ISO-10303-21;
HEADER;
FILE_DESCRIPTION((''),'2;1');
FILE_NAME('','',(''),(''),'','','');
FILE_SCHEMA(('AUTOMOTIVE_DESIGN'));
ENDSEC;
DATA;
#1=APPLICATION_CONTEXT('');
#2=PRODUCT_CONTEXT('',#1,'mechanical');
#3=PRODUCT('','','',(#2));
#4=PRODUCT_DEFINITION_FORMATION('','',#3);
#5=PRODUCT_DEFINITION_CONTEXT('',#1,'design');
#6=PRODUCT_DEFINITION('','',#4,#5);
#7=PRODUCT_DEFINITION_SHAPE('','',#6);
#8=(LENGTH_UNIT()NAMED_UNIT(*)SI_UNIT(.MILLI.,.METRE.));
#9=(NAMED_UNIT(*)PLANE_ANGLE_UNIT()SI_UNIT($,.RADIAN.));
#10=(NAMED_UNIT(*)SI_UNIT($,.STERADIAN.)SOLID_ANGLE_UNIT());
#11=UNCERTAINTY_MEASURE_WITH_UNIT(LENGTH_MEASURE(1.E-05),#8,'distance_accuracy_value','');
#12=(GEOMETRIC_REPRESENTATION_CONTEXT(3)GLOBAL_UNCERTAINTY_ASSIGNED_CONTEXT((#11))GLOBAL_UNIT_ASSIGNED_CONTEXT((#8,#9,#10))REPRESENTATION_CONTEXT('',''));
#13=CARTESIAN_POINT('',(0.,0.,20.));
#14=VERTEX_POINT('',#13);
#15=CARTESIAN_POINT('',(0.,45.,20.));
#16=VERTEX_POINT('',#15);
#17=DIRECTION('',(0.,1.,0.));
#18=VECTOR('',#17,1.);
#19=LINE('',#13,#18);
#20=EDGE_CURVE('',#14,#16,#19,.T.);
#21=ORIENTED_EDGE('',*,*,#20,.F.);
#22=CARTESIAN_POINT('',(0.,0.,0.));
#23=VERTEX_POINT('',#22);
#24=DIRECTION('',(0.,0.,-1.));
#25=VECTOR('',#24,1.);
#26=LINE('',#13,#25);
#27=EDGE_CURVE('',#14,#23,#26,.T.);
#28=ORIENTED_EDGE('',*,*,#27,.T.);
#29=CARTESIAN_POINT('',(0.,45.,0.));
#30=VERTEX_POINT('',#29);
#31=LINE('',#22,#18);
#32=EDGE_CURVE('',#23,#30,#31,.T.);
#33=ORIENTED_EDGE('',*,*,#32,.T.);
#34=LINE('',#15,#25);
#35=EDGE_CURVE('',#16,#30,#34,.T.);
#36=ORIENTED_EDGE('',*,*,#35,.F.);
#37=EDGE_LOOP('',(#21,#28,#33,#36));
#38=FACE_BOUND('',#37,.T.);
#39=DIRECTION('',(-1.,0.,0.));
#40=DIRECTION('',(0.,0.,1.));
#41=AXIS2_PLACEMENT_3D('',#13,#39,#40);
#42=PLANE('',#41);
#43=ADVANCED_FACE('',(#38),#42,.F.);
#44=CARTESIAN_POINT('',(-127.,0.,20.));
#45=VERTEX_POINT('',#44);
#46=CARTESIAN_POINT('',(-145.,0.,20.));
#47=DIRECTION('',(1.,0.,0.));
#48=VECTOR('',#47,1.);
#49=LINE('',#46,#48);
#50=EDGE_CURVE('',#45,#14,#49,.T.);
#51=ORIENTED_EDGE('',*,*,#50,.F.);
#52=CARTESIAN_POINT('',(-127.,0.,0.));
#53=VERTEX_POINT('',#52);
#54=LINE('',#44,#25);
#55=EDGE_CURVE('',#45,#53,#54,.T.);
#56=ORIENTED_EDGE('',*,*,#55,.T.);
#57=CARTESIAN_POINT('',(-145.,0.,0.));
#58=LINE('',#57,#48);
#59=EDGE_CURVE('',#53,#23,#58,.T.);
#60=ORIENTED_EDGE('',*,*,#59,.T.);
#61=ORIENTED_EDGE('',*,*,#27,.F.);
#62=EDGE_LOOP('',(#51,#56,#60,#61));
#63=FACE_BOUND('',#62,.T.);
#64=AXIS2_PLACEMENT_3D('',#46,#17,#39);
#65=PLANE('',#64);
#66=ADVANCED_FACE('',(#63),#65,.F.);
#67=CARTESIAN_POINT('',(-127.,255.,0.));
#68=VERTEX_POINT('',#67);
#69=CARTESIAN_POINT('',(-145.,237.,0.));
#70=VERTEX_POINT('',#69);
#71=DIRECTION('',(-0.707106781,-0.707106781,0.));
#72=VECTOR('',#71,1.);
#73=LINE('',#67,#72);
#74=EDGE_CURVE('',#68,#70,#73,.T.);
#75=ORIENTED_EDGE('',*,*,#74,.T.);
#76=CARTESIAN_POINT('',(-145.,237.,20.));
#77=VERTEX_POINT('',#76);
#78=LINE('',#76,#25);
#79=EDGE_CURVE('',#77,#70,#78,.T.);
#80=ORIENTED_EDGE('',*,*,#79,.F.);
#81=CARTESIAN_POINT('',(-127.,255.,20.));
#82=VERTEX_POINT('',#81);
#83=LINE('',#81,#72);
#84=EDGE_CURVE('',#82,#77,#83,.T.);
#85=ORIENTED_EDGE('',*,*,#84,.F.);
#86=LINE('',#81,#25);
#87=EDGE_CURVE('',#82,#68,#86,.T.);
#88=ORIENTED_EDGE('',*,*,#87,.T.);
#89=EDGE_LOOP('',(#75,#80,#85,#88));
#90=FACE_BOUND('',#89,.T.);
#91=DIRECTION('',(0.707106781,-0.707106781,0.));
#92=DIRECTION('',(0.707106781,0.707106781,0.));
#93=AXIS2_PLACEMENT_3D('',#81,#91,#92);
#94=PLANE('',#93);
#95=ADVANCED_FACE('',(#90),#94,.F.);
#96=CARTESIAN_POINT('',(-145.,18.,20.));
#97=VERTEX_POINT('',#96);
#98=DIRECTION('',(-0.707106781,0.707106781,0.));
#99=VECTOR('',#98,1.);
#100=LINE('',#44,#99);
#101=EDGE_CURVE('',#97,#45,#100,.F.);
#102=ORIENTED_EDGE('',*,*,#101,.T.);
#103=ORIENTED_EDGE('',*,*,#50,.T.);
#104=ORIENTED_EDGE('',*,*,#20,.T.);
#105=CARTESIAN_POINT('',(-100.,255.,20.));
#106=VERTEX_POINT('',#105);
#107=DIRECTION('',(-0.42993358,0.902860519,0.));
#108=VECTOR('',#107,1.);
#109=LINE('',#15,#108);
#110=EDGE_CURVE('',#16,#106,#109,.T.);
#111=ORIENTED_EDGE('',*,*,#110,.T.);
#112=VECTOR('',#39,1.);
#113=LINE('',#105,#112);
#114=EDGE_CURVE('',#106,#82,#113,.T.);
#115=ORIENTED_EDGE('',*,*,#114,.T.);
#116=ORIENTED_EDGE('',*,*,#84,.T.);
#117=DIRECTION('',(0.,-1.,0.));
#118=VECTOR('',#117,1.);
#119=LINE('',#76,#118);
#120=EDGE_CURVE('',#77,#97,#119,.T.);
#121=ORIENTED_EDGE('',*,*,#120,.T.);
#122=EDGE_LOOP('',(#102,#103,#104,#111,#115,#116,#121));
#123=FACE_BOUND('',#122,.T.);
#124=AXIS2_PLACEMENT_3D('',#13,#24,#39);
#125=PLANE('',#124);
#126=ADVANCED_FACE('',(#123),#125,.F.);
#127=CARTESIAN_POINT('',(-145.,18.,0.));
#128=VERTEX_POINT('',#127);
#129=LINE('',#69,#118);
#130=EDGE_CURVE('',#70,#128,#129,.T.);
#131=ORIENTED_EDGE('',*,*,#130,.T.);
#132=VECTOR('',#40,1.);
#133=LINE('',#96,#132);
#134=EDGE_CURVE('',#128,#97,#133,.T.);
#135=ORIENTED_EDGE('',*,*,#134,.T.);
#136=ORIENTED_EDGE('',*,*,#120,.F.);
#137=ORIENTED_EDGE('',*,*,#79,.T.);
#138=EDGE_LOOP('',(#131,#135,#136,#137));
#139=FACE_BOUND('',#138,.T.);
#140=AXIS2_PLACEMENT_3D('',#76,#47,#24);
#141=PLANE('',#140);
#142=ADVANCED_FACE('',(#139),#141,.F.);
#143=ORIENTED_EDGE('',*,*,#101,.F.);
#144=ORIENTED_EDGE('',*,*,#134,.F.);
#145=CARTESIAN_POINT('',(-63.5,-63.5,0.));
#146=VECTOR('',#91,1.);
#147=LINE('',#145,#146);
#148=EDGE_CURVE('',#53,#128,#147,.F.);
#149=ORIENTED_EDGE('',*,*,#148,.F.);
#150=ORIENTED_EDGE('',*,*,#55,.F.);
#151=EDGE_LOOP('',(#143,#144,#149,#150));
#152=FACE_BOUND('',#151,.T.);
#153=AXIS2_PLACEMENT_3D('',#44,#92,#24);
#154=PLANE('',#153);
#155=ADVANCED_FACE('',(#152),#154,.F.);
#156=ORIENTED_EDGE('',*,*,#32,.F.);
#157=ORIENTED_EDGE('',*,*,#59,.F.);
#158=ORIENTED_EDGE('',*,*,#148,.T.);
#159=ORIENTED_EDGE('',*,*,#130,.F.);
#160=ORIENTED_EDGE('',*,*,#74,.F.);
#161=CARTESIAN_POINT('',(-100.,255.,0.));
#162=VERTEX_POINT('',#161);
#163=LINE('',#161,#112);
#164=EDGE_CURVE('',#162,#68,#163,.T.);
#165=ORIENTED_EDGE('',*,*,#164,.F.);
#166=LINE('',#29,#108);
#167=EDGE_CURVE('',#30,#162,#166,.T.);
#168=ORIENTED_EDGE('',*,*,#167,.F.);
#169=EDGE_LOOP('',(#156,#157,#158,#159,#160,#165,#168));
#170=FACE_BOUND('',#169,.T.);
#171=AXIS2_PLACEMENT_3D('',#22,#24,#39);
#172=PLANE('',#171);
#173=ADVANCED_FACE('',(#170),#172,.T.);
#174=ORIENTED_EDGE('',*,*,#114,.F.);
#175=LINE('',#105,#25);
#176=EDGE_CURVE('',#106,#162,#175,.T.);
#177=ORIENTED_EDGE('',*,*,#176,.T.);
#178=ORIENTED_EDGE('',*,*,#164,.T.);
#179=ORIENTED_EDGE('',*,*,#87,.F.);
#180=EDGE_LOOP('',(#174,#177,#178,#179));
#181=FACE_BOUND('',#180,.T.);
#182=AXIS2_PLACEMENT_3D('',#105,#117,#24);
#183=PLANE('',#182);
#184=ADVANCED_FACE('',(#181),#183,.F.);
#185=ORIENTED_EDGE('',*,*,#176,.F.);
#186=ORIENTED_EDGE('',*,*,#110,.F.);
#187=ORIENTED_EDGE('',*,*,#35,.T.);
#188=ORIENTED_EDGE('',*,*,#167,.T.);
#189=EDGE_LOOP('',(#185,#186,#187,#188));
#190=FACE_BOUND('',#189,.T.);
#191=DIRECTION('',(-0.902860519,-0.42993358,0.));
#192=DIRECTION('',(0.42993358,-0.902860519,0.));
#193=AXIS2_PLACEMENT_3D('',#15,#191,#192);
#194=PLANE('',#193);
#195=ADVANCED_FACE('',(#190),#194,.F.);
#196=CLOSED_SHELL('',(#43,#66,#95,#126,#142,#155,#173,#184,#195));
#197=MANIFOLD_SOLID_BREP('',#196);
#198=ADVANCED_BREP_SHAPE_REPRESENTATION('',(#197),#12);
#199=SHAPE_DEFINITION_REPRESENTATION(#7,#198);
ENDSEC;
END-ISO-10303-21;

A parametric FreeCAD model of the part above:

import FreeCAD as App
import Part
import Sketcher
from FreeCAD import Vector
Q = App.Units.Quantity


def edges_at(feature, points):
    """Names of the edges that pass closest to the given points."""
    edges = feature.Shape.Edges
    near = lambda p: min(range(len(edges)), key=lambda i: edges[i].distToShape(Part.Vertex(*p))[0])
    return sorted({f"Edge{near(p) + 1}" for p in points})

doc = App.newDocument("Part")
body = doc.addObject("PartDesign::Body", "Body")

sketch1 = doc.addObject("Sketcher::SketchObject", "Sketch")
body.addObject(sketch1)
sketch1.AttachmentSupport = (doc.XY_Plane, [""])
sketch1.MapMode = "FlatFace"
sketch1.addGeometry([
    Part.LineSegment(Vector(0, 0, 0), Vector(0, 45, 0)),
    Part.LineSegment(Vector(0, 45, 0), Vector(-100, 255, 0)),
    Part.LineSegment(Vector(-100, 255, 0), Vector(-127, 255, 0)),
    Part.LineSegment(Vector(-127, 255, 0), Vector(-145, 237, 0)),
    Part.LineSegment(Vector(-145, 237, 0), Vector(-145, 0, 0)),
    Part.LineSegment(Vector(-145, 0, 0), Vector(0, 0, 0)),
], False)
sketch1.addConstraint([
    Sketcher.Constraint("Coincident", 0, 2, 1, 1),
    Sketcher.Constraint("Coincident", 1, 2, 2, 1),
    Sketcher.Constraint("Coincident", 2, 2, 3, 1),
    Sketcher.Constraint("Coincident", 3, 2, 4, 1),
    Sketcher.Constraint("Coincident", 4, 2, 5, 1),
    Sketcher.Constraint("Coincident", 5, 2, 0, 1),
    Sketcher.Constraint("Vertical", 0),
    Sketcher.Constraint("Horizontal", 2),
    Sketcher.Constraint("Vertical", 4),
    Sketcher.Constraint("Horizontal", 5),
    Sketcher.Constraint("Coincident", 5, 2, -1, 1),
    Sketcher.Constraint("DistanceX", 2, 2, 2, 1, Q("27 mm")),
    Sketcher.Constraint("DistanceX", 5, 1, 5, 2, Q("145 mm")),
    Sketcher.Constraint("DistanceY", 0, 1, 0, 2, Q("45 mm")),
    Sketcher.Constraint("DistanceY", 4, 2, 4, 1, Q("237 mm")),
    Sketcher.Constraint("Angle", 3, Q("-135 deg")),
    Sketcher.Constraint("DistanceX", 1, 2, -1, 1, Q("100 mm")),
])
pad1 = doc.addObject("PartDesign::Pad", "Pad")
body.addObject(pad1)
pad1.Profile = sketch1
pad1.Length = 20
doc.recompute()

chamfer = doc.addObject("PartDesign::Chamfer", "Chamfer")
body.addObject(chamfer)
chamfer.Base = (pad1, edges_at(pad1, [(-145, 0, 10)]))
chamfer.Size = 18

doc.recompute()
